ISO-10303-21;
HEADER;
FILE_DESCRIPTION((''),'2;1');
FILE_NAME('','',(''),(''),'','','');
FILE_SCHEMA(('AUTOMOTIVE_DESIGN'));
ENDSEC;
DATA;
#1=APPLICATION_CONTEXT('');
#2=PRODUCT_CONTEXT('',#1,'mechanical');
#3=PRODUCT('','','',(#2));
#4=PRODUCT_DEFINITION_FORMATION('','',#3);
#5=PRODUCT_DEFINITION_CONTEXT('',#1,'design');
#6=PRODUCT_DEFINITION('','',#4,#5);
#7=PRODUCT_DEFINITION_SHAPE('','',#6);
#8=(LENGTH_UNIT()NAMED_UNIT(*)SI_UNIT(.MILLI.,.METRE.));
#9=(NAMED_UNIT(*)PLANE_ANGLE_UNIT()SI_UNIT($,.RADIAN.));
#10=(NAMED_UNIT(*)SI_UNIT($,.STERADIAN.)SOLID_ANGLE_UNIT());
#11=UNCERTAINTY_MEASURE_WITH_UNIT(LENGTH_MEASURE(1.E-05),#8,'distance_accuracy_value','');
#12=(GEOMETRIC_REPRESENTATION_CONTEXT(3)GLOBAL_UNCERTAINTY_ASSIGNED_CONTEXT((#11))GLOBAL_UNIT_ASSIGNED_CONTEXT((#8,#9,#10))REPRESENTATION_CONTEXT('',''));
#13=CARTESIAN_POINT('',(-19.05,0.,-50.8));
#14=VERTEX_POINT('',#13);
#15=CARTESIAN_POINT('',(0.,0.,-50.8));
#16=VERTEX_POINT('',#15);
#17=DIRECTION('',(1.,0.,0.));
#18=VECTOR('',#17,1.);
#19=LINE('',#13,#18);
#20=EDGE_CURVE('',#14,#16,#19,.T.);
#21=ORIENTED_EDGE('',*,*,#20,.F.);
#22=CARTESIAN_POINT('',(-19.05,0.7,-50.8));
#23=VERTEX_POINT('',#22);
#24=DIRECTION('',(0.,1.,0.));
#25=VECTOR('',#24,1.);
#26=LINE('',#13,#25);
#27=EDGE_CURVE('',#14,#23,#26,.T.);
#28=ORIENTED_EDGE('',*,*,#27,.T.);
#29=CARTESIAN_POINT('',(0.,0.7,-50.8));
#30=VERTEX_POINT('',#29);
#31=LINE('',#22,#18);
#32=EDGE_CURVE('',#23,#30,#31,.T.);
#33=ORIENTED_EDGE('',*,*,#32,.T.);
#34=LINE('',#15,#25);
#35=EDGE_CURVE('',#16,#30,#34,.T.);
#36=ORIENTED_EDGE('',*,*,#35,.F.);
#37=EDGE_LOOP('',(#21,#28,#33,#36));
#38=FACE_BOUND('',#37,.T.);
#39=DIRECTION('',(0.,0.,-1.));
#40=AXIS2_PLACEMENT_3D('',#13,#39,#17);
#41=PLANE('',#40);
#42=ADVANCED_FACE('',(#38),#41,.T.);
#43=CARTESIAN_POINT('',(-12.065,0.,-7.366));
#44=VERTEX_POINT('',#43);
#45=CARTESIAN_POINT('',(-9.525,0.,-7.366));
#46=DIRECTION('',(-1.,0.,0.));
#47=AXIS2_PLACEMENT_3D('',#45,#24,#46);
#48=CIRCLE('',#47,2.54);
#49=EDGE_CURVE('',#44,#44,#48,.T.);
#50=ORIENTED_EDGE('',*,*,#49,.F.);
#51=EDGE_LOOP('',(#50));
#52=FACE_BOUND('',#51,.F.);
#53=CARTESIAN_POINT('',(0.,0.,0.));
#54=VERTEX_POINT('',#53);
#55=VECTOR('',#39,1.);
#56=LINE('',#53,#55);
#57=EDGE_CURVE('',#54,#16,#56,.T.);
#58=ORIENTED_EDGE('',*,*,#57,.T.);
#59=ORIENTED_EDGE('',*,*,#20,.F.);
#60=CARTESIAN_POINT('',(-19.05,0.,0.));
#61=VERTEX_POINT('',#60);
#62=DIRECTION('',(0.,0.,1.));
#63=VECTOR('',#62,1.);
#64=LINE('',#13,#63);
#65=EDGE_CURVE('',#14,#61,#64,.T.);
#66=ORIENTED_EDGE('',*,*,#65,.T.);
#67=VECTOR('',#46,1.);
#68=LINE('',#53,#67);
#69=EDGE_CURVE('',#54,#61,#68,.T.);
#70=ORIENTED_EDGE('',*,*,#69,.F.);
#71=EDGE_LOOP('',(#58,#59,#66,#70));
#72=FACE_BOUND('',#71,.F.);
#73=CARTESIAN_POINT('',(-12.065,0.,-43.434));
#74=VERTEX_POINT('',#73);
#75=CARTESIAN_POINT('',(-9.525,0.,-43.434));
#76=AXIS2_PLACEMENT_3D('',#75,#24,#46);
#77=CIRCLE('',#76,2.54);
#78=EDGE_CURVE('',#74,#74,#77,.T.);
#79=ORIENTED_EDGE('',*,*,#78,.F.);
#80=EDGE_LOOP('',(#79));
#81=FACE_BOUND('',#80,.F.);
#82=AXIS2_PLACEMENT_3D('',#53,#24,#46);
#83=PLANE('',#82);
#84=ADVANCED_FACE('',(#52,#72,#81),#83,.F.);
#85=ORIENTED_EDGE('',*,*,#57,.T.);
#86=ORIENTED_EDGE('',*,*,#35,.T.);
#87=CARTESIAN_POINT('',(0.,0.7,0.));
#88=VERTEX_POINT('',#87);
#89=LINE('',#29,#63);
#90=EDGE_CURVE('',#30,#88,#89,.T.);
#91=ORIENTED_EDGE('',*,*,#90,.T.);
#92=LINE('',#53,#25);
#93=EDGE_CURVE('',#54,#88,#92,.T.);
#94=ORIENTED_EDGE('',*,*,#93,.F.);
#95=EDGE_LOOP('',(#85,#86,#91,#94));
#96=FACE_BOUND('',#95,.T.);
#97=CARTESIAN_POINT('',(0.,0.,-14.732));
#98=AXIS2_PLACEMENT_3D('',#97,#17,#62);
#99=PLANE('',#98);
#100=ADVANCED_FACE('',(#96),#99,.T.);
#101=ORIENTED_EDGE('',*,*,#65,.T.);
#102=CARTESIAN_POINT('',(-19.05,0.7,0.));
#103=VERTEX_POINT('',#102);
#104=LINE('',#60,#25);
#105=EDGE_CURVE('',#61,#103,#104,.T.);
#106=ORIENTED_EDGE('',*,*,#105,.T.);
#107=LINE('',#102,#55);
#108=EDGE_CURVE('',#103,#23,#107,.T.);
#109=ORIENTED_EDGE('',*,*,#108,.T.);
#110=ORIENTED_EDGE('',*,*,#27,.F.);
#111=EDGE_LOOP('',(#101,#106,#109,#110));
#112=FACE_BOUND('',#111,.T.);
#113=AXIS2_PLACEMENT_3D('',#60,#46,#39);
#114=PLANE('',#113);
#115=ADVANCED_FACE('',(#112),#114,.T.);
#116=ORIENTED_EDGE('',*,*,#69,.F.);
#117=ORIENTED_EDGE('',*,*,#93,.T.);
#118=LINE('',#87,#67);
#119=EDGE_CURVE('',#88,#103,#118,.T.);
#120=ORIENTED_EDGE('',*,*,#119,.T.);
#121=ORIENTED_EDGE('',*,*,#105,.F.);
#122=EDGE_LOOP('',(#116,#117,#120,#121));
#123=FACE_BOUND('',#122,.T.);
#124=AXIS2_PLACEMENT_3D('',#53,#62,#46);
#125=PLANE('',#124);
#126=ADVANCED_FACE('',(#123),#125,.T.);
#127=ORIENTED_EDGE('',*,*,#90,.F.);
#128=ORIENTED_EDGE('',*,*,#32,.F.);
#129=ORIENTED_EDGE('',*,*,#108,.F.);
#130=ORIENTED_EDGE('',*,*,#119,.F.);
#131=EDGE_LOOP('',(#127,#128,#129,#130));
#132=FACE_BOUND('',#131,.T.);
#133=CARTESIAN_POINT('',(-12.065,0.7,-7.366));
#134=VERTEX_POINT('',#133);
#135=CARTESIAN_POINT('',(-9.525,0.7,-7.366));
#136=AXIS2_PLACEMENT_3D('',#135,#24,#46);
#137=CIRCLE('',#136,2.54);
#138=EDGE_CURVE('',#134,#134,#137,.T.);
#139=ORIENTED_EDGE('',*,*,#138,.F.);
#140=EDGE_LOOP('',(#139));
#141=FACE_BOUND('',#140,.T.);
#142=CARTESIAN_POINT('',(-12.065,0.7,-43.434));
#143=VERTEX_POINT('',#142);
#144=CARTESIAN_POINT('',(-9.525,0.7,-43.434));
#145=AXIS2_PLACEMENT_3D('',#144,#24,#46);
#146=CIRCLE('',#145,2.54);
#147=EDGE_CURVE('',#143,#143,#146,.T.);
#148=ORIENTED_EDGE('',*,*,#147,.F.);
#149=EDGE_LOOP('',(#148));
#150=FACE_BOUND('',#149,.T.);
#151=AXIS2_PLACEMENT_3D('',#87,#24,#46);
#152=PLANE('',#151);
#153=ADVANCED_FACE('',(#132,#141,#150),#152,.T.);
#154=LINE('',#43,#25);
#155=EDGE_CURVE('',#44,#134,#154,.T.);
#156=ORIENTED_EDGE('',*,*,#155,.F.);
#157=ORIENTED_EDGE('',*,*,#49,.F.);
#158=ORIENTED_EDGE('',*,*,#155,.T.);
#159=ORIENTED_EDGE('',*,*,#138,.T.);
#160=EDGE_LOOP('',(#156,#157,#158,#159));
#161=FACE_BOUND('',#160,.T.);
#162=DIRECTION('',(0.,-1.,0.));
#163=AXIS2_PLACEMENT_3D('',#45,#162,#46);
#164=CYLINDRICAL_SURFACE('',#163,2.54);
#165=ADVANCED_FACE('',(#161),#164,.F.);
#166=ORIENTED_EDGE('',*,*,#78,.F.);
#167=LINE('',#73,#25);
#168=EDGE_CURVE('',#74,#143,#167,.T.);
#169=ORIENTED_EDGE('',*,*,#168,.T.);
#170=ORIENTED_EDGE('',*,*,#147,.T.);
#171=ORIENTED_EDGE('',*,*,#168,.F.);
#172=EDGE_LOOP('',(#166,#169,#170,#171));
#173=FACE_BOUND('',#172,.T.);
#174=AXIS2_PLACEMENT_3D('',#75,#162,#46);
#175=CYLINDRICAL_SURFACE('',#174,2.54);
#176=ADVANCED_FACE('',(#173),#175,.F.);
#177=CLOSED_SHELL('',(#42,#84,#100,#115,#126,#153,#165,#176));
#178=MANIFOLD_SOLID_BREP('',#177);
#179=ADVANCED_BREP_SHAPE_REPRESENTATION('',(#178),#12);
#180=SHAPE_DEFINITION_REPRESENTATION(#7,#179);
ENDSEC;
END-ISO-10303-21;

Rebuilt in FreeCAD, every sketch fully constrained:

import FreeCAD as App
import Part
import Sketcher

V = App.Vector
Q = App.Units.Quantity


def add_polygon(sketch, points):
    """Adds a closed chain of lines whose ends are joined by coincident constraints."""
    first, n = sketch.GeometryCount, len(points)
    for a, b in zip(points, points[1:] + points[:1]):
        sketch.addGeometry(Part.LineSegment(App.Vector(*a, 0), App.Vector(*b, 0)), False)
    for i in range(n):
        sketch.addConstraint(Sketcher.Constraint("Coincident", first + i, 2, first + (i + 1) % n, 1))

doc = App.newDocument("Part")
body = doc.addObject("PartDesign::Body", "Body")

# Sketch on XZ plane
sketch1 = doc.addObject("Sketcher::SketchObject", "Sketch")
body.addObject(sketch1)
sketch1.AttachmentSupport = (doc.XZ_Plane, [""])
sketch1.MapMode = "FlatFace"
add_polygon(sketch1, [(-19.1, 0), (0, 0), (0, -50.8), (-19.1, -50.8)])  # lines 0-3
sketch1.addGeometry(Part.Circle(V(-9.5, -7.4, 0), V(0, 0, 1), 2.5), False)  # 4
sketch1.addGeometry(Part.Circle(V(-9.5, -43.4, 0), V(0, 0, 1), 2.5), False)  # 5
sketch1.addConstraint(Sketcher.Constraint("Horizontal", 0))
sketch1.addConstraint(Sketcher.Constraint("Vertical", 1))
sketch1.addConstraint(Sketcher.Constraint("Horizontal", 2))
sketch1.addConstraint(Sketcher.Constraint("Vertical", 3))
sketch1.addConstraint(Sketcher.Constraint("Coincident", 0, 2, -1, 1))
sketch1.addConstraint(Sketcher.Constraint("Equal", 4, 5))
sketch1.addConstraint(Sketcher.Constraint("Vertical", 4, 3, 5, 3))
sketch1.addConstraint(Sketcher.Constraint("Diameter", 4, Q("0.2 in")))
sketch1.addConstraint(Sketcher.Constraint("DistanceY", 1, 2, 1, 1, Q("2 in")))
sketch1.addConstraint(Sketcher.Constraint("DistanceX", 0, 1, 0, 2, Q("0.75 in")))
sketch1.addConstraint(Sketcher.Constraint("DistanceY", 4, 3, -1, 1, Q("0.29 in")))
sketch1.addConstraint(Sketcher.Constraint("DistanceY", 5, 3, -1, 1, Q("1.71 in")))
sketch1.addConstraint(Sketcher.Constraint("DistanceX", 4, 3, -1, 1, Q("0.375 in")))
pad1 = doc.addObject("PartDesign::Pad", "Pad")
body.addObject(pad1)
pad1.Profile = sketch1
pad1.Length = 0.7
pad1.Reversed = True

doc.recompute()
